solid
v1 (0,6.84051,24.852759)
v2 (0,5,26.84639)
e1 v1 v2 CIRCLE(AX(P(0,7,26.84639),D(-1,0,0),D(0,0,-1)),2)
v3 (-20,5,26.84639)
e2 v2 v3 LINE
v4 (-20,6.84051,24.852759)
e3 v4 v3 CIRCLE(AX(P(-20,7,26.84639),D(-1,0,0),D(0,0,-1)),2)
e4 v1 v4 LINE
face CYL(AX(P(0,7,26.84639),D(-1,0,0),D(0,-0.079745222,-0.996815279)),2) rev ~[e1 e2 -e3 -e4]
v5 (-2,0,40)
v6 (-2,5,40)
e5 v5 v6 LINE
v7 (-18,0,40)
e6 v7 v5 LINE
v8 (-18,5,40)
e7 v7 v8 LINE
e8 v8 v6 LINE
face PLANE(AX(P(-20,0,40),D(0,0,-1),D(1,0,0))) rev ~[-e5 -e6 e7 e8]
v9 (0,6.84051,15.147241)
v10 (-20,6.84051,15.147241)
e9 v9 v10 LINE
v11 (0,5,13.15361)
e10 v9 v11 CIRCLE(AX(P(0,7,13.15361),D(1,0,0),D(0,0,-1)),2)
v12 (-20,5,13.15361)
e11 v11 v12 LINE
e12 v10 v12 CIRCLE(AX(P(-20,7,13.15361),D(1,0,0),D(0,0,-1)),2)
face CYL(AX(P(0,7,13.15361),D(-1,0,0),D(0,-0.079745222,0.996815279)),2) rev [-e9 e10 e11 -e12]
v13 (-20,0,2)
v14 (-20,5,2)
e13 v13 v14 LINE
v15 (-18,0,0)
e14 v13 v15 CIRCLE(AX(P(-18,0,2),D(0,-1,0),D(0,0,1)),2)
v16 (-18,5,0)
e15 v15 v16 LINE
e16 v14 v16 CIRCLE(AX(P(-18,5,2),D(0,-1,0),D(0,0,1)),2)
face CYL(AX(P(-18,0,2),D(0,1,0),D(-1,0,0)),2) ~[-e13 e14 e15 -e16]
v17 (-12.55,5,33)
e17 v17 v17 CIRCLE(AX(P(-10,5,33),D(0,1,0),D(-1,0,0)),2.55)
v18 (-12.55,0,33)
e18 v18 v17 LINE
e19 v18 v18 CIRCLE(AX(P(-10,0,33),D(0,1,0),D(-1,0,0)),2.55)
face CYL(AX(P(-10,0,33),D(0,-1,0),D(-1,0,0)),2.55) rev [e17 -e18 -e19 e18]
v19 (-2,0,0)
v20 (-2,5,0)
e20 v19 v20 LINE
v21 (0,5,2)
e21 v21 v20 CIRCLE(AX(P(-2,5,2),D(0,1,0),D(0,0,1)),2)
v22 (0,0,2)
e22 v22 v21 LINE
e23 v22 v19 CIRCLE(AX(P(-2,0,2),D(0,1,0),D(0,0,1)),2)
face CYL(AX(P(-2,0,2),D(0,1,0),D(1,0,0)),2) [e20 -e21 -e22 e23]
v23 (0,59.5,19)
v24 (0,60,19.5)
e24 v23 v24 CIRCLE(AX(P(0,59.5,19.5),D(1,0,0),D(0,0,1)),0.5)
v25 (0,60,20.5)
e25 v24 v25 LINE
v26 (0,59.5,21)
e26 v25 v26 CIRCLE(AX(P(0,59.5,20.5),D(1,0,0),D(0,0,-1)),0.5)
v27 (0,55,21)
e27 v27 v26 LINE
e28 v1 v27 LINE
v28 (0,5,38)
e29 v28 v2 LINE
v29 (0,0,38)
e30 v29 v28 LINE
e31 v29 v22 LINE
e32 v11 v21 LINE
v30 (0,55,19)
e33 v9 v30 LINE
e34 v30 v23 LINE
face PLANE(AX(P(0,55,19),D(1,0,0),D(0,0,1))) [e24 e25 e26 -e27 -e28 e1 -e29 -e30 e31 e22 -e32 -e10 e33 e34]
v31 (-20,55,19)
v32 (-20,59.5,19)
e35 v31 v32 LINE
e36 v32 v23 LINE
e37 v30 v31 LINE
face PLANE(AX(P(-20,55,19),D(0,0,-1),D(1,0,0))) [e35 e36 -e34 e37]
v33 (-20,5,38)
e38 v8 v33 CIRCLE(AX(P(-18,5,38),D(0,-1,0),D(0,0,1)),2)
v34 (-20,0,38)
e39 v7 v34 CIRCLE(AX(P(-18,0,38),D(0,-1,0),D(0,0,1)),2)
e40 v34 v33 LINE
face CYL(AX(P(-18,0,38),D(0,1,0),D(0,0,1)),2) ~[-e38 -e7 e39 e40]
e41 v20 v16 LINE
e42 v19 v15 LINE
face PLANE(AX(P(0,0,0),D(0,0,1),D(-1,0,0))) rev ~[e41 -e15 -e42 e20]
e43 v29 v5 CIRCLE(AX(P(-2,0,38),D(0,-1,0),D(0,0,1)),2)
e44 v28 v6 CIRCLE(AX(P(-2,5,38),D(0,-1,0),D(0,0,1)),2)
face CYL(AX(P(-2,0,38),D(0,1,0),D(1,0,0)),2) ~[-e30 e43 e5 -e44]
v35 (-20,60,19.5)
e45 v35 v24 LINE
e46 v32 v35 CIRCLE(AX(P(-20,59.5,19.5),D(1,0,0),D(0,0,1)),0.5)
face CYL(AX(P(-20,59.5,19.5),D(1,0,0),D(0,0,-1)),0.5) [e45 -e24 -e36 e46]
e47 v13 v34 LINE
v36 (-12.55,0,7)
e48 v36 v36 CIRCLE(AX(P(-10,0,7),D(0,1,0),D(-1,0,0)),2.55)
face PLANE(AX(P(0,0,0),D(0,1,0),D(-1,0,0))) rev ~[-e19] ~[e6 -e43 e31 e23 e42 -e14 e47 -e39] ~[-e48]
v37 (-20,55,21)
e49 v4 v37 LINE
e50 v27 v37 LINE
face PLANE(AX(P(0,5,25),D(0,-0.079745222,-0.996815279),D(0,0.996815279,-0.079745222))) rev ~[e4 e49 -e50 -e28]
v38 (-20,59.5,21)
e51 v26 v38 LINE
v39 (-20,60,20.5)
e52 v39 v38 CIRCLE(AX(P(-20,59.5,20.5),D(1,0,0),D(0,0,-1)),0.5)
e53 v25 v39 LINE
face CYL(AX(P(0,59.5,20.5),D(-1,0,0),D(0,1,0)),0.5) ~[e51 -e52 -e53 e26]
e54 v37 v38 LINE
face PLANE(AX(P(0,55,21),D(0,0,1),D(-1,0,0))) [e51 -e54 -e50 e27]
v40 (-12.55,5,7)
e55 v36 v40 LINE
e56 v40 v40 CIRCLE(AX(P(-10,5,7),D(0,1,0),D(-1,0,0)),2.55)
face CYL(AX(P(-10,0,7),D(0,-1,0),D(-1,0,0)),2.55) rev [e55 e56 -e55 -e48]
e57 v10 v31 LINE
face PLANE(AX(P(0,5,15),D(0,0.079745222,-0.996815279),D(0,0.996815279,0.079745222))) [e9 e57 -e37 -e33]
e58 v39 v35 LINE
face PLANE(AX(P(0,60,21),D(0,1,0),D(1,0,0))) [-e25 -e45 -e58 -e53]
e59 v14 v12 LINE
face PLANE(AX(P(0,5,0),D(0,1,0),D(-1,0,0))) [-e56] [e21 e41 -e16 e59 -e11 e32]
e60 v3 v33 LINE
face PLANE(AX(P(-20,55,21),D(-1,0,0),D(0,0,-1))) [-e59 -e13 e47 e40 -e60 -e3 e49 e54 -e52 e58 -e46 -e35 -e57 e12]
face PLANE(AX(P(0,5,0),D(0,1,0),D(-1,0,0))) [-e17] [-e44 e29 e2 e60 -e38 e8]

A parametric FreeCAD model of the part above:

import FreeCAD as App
import Part
import Sketcher
from FreeCAD import Vector


def edges_at(feature, points):
    """Names of the edges that pass closest to the given points."""
    edges = feature.Shape.Edges
    near = lambda p: min(range(len(edges)), key=lambda i: edges[i].distToShape(Part.Vertex(*p))[0])
    return sorted({f"Edge{near(p) + 1}" for p in points})

doc = App.newDocument("Part")
body = doc.addObject("PartDesign::Body", "Body")

# Sketch on XZ plane
sketch1 = doc.addObject("Sketcher::SketchObject", "Sketch")
body.addObject(sketch1)
sketch1.AttachmentSupport = (doc.XZ_Plane, [""])
sketch1.MapMode = "FlatFace"
sketch1.addGeometry([
    Part.LineSegment(Vector(0, 40, 0), Vector(0, 0, 0)),  # 0
    Part.LineSegment(Vector(0, 0, 0), Vector(-20, 0, 0)),  # 1
    Part.LineSegment(Vector(-20, 0, 0), Vector(-20, 40, 0)),  # 2
    Part.LineSegment(Vector(-20, 40, 0), Vector(0, 40, 0)),  # 3
    Part.Circle(Vector(-10, 7, 0), Vector(0, 0, 1), 2.5),  # 4
    Part.Circle(Vector(-10, 33, 0), Vector(0, 0, 1), 2.5),  # 5
], False)
sketch1.addConstraint([
    Sketcher.Constraint("Coincident", 0, 2, 1, 1),
    Sketcher.Constraint("Coincident", 1, 2, 2, 1),
    Sketcher.Constraint("Coincident", 2, 2, 3, 1),
    Sketcher.Constraint("Coincident", 3, 2, 0, 1),
    Sketcher.Constraint("Vertical", 0),
    Sketcher.Constraint("Horizontal", 1),
    Sketcher.Constraint("Vertical", 2),
    Sketcher.Constraint("Horizontal", 3),
    Sketcher.Constraint("Coincident", 0, 2, -1, 1),
    Sketcher.Constraint("Equal", 4, 5),
    Sketcher.Constraint("Vertical", 4, 3, 5, 3),
    Sketcher.Constraint("Diameter", 4, 5.1),
    Sketcher.Constraint("DistanceX", 1, 2, 1, 1, 20.0),
    Sketcher.Constraint("DistanceY", 0, 2, 0, 1, 40.0),
    Sketcher.Constraint("DistanceX", 4, 3, -1, 1, 10.0),
    Sketcher.Constraint("DistanceY", -1, 1, 4, 3, 7.0),
    Sketcher.Constraint("DistanceY", 5, 3, 2, 2, 7.0),
])
pad1 = doc.addObject("PartDesign::Pad", "Pad")
body.addObject(pad1)
pad1.Profile = sketch1
pad1.Length = 5
pad1.Reversed = True
doc.recompute()

fillet = doc.addObject("PartDesign::Fillet", "Fillet")
body.addObject(fillet)
fillet.Base = (pad1, edges_at(pad1, [
    (-20, 2.5, 40),
    (-20, 2.5, 0),
    (0, 2.5, 0),
    (0, 2.5, 40),
]))
fillet.Radius = 2

# Sketch on YZ plane
sketch2 = doc.addObject("Sketcher::SketchObject", "Sketch001")
body.addObject(sketch2)
sketch2.AttachmentSupport = (doc.YZ_Plane, [""])
sketch2.MapMode = "FlatFace"
sketch2.addGeometry([
    Part.LineSegment(Vector(55, 19, 0), Vector(55, 21, 0)),
    Part.LineSegment(Vector(55, 21, 0), Vector(5, 25, 0)),
    Part.LineSegment(Vector(5, 25, 0), Vector(5, 15, 0)),
    Part.LineSegment(Vector(5, 15, 0), Vector(55, 19, 0)),
], False)
sketch2.addConstraint([
    Sketcher.Constraint("Coincident", 0, 2, 1, 1),
    Sketcher.Constraint("Coincident", 1, 2, 2, 1),
    Sketcher.Constraint("Coincident", 2, 2, 3, 1),
    Sketcher.Constraint("Coincident", 3, 2, 0, 1),
    Sketcher.Constraint("Vertical", 0),
    Sketcher.Constraint("Vertical", 2),
    Sketcher.Constraint("Equal", 1, 3),
    Sketcher.Constraint("DistanceY", 0, 1, 0, 2, 2.0),
    Sketcher.Constraint("DistanceY", -1, 1, 3, 2, 19.0),
    Sketcher.Constraint("DistanceX", 1, 2, 0, 2, 50.0),
    Sketcher.Constraint("DistanceY", 2, 2, 2, 1, 10.0),
    Sketcher.Constraint("DistanceX", -1, 1, 0, 2, 55.0),
])
pad2 = doc.addObject("PartDesign::Pad", "Pad001")
body.addObject(pad2)
pad2.Profile = sketch2
pad2.Length = 20
pad2.Reversed = True

# Sketch on XZ plane
sketch3 = doc.addObject("Sketcher::SketchObject", "Sketch002")
body.addObject(sketch3)
sketch3.AttachmentSupport = (doc.XZ_Plane, [""])
sketch3.MapMode = "FlatFace"
sketch3.AttachmentOffset = App.Placement(Vector(0, 0, -55), App.Rotation())
sketch3.addGeometry([
    Part.LineSegment(Vector(0, 19, 0), Vector(-20, 19, 0)),
    Part.LineSegment(Vector(-20, 19, 0), Vector(-20, 21, 0)),
    Part.LineSegment(Vector(-20, 21, 0), Vector(0, 21, 0)),
    Part.LineSegment(Vector(0, 21, 0), Vector(0, 19, 0)),
], False)
sketch3.addConstraint([
    Sketcher.Constraint("Coincident", 0, 2, 1, 1),
    Sketcher.Constraint("Coincident", 1, 2, 2, 1),
    Sketcher.Constraint("Coincident", 2, 2, 3, 1),
    Sketcher.Constraint("Coincident", 3, 2, 0, 1),
    Sketcher.Constraint("Horizontal", 0),
    Sketcher.Constraint("Vertical", 1),
    Sketcher.Constraint("Horizontal", 2),
    Sketcher.Constraint("Vertical", 3),
    Sketcher.Constraint("PointOnObject", 2, 2, -2),
    Sketcher.Constraint("DistanceX", 0, 2, 0, 1, 20.0),
    Sketcher.Constraint("DistanceY", 1, 1, 1, 2, 2.0),
    Sketcher.Constraint("DistanceY", -1, 1, 0, 2, 19.0),
])
pad3 = doc.addObject("PartDesign::Pad", "Pad002")
body.addObject(pad3)
pad3.Profile = sketch3
pad3.Length = 5
pad3.Reversed = True
doc.recompute()

fillet2 = doc.addObject("PartDesign::Fillet", "Fillet001")
body.addObject(fillet2)
fillet2.Base = (pad3, edges_at(pad3, [(-10, 5, 15), (-10, 5, 25)]))
fillet2.Radius = 2
doc.recompute()

fillet3 = doc.addObject("PartDesign::Fillet", "Fillet002")
body.addObject(fillet3)
fillet3.Base = (fillet2, edges_at(fillet2, [(-10, 60, 21), (-10, 60, 19)]))
fillet3.Radius = 0.5

doc.recompute()
